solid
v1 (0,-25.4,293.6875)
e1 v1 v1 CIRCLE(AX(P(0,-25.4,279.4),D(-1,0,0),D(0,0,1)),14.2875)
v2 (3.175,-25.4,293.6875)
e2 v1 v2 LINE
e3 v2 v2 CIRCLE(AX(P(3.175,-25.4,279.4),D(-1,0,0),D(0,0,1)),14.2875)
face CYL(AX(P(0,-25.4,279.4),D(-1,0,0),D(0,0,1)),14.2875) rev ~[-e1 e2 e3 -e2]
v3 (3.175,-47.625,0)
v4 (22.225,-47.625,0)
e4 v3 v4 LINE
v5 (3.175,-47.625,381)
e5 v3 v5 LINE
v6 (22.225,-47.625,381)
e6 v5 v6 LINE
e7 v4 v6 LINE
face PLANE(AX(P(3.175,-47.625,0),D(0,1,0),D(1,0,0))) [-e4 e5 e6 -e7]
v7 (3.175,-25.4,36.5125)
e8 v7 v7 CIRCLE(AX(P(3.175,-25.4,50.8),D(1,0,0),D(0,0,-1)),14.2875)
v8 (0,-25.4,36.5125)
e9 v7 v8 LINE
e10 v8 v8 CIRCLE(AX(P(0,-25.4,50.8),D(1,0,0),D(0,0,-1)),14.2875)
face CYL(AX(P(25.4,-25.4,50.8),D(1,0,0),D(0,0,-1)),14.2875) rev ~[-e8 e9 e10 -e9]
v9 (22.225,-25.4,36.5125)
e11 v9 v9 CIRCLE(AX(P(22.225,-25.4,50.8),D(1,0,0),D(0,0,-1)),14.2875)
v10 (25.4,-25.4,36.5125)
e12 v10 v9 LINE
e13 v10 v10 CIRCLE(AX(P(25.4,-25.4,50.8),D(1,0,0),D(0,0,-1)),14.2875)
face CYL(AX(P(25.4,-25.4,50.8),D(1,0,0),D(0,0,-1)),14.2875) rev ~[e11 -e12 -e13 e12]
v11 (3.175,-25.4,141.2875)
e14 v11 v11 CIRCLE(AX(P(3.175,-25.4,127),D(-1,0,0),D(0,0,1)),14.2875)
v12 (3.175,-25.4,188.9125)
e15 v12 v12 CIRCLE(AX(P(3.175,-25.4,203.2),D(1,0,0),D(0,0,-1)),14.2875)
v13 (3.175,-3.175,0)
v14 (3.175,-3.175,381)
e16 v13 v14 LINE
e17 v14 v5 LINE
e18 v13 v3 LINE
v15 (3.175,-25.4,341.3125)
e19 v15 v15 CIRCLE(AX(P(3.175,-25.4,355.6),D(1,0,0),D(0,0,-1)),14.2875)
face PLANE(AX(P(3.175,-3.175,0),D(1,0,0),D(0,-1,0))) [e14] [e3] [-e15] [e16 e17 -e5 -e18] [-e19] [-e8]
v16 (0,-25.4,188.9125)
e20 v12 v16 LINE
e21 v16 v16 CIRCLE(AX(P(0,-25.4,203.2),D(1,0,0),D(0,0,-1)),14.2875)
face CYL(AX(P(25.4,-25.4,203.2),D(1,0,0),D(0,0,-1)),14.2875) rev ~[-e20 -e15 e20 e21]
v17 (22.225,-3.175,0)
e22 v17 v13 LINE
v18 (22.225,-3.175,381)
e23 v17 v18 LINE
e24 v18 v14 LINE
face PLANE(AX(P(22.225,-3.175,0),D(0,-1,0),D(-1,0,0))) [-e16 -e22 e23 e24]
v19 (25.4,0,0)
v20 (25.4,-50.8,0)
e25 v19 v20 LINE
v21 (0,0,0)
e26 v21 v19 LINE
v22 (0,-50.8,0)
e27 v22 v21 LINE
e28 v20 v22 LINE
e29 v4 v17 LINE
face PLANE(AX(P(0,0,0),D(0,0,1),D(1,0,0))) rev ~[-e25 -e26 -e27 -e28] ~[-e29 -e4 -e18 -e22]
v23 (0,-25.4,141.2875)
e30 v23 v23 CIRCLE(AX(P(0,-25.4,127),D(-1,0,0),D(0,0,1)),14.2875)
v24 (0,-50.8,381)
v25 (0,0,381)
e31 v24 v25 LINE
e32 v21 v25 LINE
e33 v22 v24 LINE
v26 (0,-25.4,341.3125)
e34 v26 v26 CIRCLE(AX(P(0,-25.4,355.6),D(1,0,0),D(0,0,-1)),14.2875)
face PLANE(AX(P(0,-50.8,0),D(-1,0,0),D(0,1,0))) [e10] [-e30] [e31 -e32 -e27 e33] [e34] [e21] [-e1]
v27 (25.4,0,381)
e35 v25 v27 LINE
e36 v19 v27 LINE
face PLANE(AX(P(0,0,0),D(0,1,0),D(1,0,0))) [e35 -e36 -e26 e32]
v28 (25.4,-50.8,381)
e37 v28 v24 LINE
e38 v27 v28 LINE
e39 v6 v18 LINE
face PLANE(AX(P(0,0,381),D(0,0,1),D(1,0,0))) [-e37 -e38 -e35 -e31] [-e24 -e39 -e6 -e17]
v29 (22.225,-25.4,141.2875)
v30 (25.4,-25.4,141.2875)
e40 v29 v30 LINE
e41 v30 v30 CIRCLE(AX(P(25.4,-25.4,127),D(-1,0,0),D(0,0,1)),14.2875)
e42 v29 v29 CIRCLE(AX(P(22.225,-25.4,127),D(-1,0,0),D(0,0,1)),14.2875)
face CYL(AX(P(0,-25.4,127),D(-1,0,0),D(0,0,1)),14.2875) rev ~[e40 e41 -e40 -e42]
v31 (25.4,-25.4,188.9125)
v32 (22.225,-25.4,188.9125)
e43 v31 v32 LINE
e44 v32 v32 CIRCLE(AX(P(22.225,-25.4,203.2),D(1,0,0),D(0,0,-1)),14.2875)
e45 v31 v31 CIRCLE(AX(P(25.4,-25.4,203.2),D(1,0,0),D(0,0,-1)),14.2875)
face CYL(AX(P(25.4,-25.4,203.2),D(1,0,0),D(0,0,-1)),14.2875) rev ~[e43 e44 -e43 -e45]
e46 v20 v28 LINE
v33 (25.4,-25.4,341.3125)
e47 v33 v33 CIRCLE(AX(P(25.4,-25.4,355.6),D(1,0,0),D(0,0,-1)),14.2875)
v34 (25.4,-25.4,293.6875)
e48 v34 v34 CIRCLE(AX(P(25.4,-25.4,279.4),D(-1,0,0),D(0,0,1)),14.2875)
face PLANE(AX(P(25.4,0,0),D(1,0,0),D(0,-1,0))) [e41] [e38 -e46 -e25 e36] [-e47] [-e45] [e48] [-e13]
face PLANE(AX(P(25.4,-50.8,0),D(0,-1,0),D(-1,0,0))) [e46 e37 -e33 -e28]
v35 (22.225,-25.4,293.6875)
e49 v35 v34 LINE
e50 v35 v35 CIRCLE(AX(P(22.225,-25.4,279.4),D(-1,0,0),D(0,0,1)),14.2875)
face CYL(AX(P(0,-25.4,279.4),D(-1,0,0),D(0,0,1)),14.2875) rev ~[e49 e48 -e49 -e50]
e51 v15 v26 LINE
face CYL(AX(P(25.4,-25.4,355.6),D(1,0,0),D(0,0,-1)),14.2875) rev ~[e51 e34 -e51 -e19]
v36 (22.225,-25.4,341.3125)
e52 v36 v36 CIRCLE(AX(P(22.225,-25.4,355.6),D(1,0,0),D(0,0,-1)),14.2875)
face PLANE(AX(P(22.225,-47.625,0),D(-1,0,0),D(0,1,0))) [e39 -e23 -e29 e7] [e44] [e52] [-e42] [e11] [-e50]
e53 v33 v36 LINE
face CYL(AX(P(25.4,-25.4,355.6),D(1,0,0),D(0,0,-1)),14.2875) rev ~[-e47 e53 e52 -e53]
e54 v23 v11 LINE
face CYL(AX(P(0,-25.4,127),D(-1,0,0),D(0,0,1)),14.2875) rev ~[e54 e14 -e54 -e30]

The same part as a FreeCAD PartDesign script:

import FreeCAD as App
import Part
import Sketcher
Q = App.Units.Quantity


def add_polygon(sketch, points):
    """Adds a closed chain of lines whose ends are joined by coincident constraints."""
    first, n = sketch.GeometryCount, len(points)
    for a, b in zip(points, points[1:] + points[:1]):
        sketch.addGeometry(Part.LineSegment(App.Vector(*a, 0), App.Vector(*b, 0)), False)
    for i in range(n):
        sketch.addConstraint(Sketcher.Constraint("Coincident", first + i, 2, first + (i + 1) % n, 1))

doc = App.newDocument("Part")
body = doc.addObject("PartDesign::Body", "Body")

sketch1 = body.newObject("Sketcher::SketchObject", "Sketch")
sketch1.AttachmentSupport = (doc.getObject("XY_Plane"), [""])
sketch1.MapMode = "FlatFace"
add_polygon(sketch1, [(25, 0), (0, 0), (0, -51), (25, -51)])
add_polygon(sketch1, [(3, -3), (22, -3), (22, -48), (3, -48)])
sketch1.addConstraint(Sketcher.Constraint("Horizontal", 0))
sketch1.addConstraint(Sketcher.Constraint("Vertical", 1))
sketch1.addConstraint(Sketcher.Constraint("Horizontal", 2))
sketch1.addConstraint(Sketcher.Constraint("Vertical", 3))
sketch1.addConstraint(Sketcher.Constraint("Horizontal", 4))
sketch1.addConstraint(Sketcher.Constraint("Vertical", 5))
sketch1.addConstraint(Sketcher.Constraint("Horizontal", 6))
sketch1.addConstraint(Sketcher.Constraint("Vertical", 7))
sketch1.addConstraint(Sketcher.Constraint("Coincident", 0, 2, -1, 1))
sketch1.addConstraint(Sketcher.Constraint("DistanceX", 0, 2, 0, 1, Q("1 in")))
sketch1.addConstraint(Sketcher.Constraint("DistanceY", 1, 2, 1, 1, Q("2 in")))
sketch1.addConstraint(Sketcher.Constraint("DistanceY", 4, 2, -1, 1, Q("0.125 in")))
sketch1.addConstraint(Sketcher.Constraint("DistanceX", -1, 1, 6, 2, Q("0.125 in")))
sketch1.addConstraint(Sketcher.Constraint("DistanceX", 4, 2, 3, 2, Q("0.125 in")))
sketch1.addConstraint(Sketcher.Constraint("DistanceY", 2, 2, 5, 2, Q("0.125 in")))
pad1 = body.newObject("PartDesign::Pad", "Pad")
pad1.Profile = sketch1
pad1.Length = Q("15 in")

sketch2 = body.newObject("Sketcher::SketchObject", "Sketch001")
sketch2.AttachmentSupport = (doc.getObject("YZ_Plane"), [""])
sketch2.MapMode = "FlatFace"
sketch2.AttachmentOffset = App.Placement(App.Vector(0, 0, 1 * 25.4), App.Rotation())
sketch2.addGeometry(Part.Circle(App.Vector(-25, 356, 0), App.Vector(0, 0, 1), 14), False)
sketch2.addGeometry(Part.Circle(App.Vector(-25, 203, 0), App.Vector(0, 0, 1), 14), False)
sketch2.addGeometry(Part.Circle(App.Vector(-25, 51, 0), App.Vector(0, 0, 1), 14), False)
sketch2.addConstraint(Sketcher.Constraint("Equal", 0, 1))
sketch2.addConstraint(Sketcher.Constraint("Equal", 1, 2))
sketch2.addConstraint(Sketcher.Constraint("Vertical", 0, 3, 1, 3))
sketch2.addConstraint(Sketcher.Constraint("Vertical", 1, 3, 2, 3))
sketch2.addConstraint(Sketcher.Constraint("Diameter", 0, Q("1.125 in")))
sketch2.addConstraint(Sketcher.Constraint("DistanceX", 0, 3, -1, 1, Q("1 in")))
sketch2.addConstraint(Sketcher.Constraint("DistanceY", -1, 1, 2, 3, Q("2 in")))
sketch2.addConstraint(Sketcher.Constraint("DistanceY", 1, 3, 0, 3, Q("6 in")))
sketch2.addConstraint(Sketcher.Constraint("DistanceY", 2, 3, 1, 3, Q("6 in")))
pocket1 = body.newObject("PartDesign::Pocket", "Pocket")
pocket1.Profile = sketch2
pocket1.Length = Q("15 in")

sketch3 = body.newObject("Sketcher::SketchObject", "Sketch002")
sketch3.AttachmentSupport = (doc.getObject("YZ_Plane"), [""])
sketch3.MapMode = "FlatFace"
sketch3.addGeometry(Part.Circle(App.Vector(-25, 127, 0), App.Vector(0, 0, 1), 14), False)
sketch3.addGeometry(Part.Circle(App.Vector(-25, 279, 0), App.Vector(0, 0, 1), 14), False)
sketch3.addConstraint(Sketcher.Constraint("Equal", 0, 1))
sketch3.addConstraint(Sketcher.Constraint("Vertical", 0, 3, 1, 3))
sketch3.addConstraint(Sketcher.Constraint("Diameter", 0, Q("1.125 in")))
sketch3.addConstraint(Sketcher.Constraint("DistanceX", 0, 3, -1, 1, Q("1 in")))
sketch3.addConstraint(Sketcher.Constraint("DistanceY", -1, 1, 0, 3, Q("5 in")))
sketch3.addConstraint(Sketcher.Constraint("DistanceY", -1, 1, 1, 3, Q("11 in")))
pocket2 = body.newObject("PartDesign::Pocket", "Pocket001")
pocket2.Profile = sketch3
pocket2.Length = Q("1 in")
pocket2.Reversed = True

doc.recompute()
